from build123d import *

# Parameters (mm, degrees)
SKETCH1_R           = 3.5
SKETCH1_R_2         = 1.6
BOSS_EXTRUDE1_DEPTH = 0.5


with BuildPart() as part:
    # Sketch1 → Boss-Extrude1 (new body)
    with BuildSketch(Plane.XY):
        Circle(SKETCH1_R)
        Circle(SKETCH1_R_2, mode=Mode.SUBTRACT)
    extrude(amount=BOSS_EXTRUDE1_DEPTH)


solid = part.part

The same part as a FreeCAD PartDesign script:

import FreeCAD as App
import Part
import Sketcher
from FreeCAD import Vector

doc = App.newDocument("Part")
body = doc.addObject("PartDesign::Body", "Body")

# Sketch on XY plane
sketch1 = body.newObject("Sketcher::SketchObject", "Sketch")
sketch1.AttachmentSupport = (doc.getObject("XY_Plane"), [""])
sketch1.MapMode = "FlatFace"
sketch1.addGeometry([
    Part.Circle(Vector(0, 0, 0), Vector(0, 0, 1), 3.5),
    Part.Circle(Vector(0, 0, 0), Vector(0, 0, 1), 1.6),
], False)
sketch1.addConstraint([
    Sketcher.Constraint("Coincident", 0, 3, -1, 1),
    Sketcher.Constraint("Coincident", 1, 3, -1, 1),
    Sketcher.Constraint("Diameter", 0, 7.0),
    Sketcher.Constraint("Diameter", 1, 3.2),
])
pad1 = body.newObject("PartDesign::Pad", "Pad")
pad1.Profile = sketch1
pad1.Length = 0.5

doc.recompute()
